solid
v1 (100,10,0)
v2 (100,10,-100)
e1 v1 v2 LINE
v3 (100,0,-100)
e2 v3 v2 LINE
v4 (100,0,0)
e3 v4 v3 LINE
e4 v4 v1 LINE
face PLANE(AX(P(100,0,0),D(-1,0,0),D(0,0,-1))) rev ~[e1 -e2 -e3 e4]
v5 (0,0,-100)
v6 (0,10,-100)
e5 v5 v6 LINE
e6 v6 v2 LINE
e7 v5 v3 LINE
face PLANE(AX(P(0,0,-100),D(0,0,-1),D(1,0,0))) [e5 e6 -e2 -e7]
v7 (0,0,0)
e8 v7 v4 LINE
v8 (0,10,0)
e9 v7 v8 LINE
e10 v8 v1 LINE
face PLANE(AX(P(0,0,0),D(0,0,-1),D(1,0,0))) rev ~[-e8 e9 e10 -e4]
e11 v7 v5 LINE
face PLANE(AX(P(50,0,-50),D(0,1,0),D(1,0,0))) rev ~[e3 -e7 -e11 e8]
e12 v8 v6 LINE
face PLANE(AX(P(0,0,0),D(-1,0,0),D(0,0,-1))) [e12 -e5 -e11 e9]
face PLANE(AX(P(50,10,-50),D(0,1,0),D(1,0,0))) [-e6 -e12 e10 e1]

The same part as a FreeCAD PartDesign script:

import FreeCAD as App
import Part
import Sketcher

V = App.Vector
Q = App.Units.Quantity


def add_polygon(sketch, points):
    """Adds a closed chain of lines whose ends are joined by coincident constraints."""
    first, n = sketch.GeometryCount, len(points)
    for a, b in zip(points, points[1:] + points[:1]):
        sketch.addGeometry(Part.LineSegment(App.Vector(*a, 0), App.Vector(*b, 0)), False)
    for i in range(n):
        sketch.addConstraint(Sketcher.Constraint("Coincident", first + i, 2, first + (i + 1) % n, 1))

doc = App.newDocument("Part")
body = doc.addObject("PartDesign::Body", "Body")

# Sketch on XZ plane
sketch1 = body.newObject("Sketcher::SketchObject", "Sketch")
sketch1.AttachmentSupport = (doc.getObject("XZ_Plane"), [""])
sketch1.MapMode = "FlatFace"
add_polygon(sketch1, [(0, -100), (0, 0), (100, 0), (100, -100)])  # lines 0-3
sketch1.addConstraint(Sketcher.Constraint("Vertical", 0))
sketch1.addConstraint(Sketcher.Constraint("Horizontal", 1))
sketch1.addConstraint(Sketcher.Constraint("Vertical", 2))
sketch1.addConstraint(Sketcher.Constraint("Horizontal", 3))
sketch1.addConstraint(Sketcher.Constraint("Coincident", 0, 2, -1, 1))
sketch1.addConstraint(Sketcher.Constraint("Equal", 3, 0))
sketch1.addConstraint(Sketcher.Constraint("DistanceX", 1, 1, 1, 2, Q("100 mm")))
pad1 = body.newObject("PartDesign::Pad", "Pad")
pad1.Profile = sketch1
pad1.Length = 10
pad1.Reversed = True

doc.recompute()
